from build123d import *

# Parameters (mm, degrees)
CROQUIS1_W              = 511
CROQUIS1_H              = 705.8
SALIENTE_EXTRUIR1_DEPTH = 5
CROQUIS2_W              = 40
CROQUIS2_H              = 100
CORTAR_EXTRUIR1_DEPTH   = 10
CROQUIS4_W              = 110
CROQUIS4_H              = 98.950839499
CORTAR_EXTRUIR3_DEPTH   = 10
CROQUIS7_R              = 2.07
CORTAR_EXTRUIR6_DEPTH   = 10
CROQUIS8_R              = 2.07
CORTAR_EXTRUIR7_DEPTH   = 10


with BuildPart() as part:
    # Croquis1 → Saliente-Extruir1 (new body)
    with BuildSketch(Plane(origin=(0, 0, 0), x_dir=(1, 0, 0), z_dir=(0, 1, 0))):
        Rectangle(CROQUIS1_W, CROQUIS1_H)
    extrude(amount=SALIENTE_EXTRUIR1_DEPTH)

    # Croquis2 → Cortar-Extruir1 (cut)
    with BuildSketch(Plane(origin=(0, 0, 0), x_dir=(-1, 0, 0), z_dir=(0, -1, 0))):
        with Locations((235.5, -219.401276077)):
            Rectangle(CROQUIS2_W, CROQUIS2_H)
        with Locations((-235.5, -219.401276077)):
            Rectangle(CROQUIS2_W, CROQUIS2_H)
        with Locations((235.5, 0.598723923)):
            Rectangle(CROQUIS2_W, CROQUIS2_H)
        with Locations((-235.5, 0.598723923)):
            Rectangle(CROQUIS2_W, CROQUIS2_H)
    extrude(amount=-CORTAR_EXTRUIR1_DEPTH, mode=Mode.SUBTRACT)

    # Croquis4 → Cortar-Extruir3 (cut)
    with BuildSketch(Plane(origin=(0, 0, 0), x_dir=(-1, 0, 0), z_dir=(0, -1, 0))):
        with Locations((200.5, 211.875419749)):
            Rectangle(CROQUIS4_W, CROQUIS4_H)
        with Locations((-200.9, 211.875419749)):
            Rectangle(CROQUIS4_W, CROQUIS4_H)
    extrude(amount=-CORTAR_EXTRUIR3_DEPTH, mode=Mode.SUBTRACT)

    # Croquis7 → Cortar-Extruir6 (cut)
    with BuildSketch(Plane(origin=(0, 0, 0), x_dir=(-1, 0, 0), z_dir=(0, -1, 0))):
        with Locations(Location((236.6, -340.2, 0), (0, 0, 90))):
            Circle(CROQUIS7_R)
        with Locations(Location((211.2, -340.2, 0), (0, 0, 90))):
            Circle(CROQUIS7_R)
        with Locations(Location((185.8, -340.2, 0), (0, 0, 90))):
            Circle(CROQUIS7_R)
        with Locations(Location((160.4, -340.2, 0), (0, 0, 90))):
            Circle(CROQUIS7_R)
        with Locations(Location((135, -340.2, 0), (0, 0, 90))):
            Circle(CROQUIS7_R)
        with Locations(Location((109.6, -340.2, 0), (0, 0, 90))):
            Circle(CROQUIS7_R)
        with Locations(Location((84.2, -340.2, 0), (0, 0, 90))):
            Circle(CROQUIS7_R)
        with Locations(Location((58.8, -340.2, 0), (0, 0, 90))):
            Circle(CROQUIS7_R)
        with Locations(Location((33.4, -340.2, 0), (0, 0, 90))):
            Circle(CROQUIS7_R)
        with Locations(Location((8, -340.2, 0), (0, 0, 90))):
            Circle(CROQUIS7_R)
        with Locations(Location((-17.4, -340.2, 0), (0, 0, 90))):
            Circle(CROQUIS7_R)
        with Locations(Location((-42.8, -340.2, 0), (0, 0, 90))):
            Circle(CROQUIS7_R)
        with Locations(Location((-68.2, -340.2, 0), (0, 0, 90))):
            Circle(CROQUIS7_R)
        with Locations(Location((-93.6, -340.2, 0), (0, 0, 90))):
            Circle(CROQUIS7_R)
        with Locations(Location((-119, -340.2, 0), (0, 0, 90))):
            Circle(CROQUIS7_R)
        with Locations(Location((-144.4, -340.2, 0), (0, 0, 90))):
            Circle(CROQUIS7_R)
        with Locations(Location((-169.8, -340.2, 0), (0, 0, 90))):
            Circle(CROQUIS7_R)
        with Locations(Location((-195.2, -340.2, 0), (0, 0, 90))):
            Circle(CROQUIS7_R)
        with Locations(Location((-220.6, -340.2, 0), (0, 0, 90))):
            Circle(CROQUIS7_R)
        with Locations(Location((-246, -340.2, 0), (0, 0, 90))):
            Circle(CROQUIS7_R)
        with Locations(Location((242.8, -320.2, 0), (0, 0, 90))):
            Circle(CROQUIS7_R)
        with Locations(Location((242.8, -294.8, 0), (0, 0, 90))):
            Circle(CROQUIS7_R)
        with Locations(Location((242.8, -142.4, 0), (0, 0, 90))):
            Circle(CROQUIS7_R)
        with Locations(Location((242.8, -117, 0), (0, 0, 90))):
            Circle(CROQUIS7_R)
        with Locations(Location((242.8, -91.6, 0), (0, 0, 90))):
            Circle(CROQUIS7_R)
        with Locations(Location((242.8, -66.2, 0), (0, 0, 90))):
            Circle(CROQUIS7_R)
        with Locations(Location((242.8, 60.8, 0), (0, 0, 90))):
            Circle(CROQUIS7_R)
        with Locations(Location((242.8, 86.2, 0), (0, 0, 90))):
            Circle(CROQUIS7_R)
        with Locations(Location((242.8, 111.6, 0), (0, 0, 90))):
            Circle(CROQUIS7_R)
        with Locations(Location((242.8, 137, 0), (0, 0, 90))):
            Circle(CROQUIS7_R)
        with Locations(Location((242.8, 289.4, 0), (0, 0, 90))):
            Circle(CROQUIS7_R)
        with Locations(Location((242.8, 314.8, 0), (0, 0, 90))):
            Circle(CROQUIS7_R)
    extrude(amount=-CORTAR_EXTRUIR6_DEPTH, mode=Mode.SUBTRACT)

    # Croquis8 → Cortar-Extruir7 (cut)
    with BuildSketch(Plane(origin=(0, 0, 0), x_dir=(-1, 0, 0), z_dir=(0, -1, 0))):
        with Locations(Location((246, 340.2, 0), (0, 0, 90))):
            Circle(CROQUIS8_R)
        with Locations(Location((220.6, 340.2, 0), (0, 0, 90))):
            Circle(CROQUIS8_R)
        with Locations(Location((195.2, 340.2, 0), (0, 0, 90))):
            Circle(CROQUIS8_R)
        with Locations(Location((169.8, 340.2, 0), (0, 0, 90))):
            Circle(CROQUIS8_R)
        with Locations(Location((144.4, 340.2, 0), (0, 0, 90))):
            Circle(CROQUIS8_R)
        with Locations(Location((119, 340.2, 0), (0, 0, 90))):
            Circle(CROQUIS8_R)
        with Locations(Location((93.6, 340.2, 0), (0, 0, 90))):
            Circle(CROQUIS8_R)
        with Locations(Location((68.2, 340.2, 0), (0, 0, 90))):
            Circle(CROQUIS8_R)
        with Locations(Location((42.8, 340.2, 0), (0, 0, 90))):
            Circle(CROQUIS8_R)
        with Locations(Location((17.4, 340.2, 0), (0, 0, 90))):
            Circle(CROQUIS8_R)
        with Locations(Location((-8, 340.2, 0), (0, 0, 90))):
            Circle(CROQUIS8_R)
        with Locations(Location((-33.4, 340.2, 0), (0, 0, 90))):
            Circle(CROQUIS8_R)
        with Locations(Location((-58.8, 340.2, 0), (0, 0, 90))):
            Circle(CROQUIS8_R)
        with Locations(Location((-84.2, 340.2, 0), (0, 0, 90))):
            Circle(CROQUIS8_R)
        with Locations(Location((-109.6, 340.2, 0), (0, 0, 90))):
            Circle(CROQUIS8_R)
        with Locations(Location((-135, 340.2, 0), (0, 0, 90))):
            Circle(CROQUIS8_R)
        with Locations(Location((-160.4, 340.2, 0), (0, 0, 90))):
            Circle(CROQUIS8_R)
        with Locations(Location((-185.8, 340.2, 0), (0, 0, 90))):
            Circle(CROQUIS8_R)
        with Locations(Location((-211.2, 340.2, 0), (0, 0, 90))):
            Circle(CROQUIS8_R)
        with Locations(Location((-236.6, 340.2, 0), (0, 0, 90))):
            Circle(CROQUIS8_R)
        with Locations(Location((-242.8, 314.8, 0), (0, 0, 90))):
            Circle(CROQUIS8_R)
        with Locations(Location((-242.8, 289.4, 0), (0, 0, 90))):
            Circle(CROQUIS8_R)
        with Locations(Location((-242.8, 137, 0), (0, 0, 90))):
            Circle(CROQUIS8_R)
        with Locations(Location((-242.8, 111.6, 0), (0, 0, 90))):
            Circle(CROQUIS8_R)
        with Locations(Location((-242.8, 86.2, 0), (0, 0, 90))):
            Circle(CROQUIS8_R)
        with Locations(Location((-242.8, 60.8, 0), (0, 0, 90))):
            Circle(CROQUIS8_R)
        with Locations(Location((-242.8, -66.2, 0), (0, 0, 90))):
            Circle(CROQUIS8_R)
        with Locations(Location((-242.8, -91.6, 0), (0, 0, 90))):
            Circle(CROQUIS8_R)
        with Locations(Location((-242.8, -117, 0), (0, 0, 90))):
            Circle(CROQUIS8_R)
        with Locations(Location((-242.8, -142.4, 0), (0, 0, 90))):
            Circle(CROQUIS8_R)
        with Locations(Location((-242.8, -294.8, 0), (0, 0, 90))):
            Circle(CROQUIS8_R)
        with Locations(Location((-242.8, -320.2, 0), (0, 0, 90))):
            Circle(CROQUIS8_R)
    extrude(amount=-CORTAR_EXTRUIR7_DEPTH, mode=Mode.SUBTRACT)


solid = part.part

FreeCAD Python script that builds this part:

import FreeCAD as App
import Part
import Sketcher
from FreeCAD import Vector
Q = App.Units.Quantity

doc = App.newDocument("Part")
body = doc.addObject("PartDesign::Body", "Body")

# Sketch on XZ plane
sketch1 = doc.addObject("Sketcher::SketchObject", "Sketch")
body.addObject(sketch1)
sketch1.AttachmentSupport = (doc.XZ_Plane, [""])
sketch1.MapMode = "FlatFace"
sketch1.addGeometry([
    Part.LineSegment(Vector(-256, -353, 0), Vector(-256, 353, 0)),
    Part.LineSegment(Vector(-256, 353, 0), Vector(256, 353, 0)),
    Part.LineSegment(Vector(256, 353, 0), Vector(256, -353, 0)),
    Part.LineSegment(Vector(256, -353, 0), Vector(-256, -353, 0)),
], False)
sketch1.addConstraint([
    Sketcher.Constraint("Coincident", 0, 2, 1, 1),
    Sketcher.Constraint("Coincident", 1, 2, 2, 1),
    Sketcher.Constraint("Coincident", 2, 2, 3, 1),
    Sketcher.Constraint("Coincident", 3, 2, 0, 1),
    Sketcher.Constraint("Vertical", 0),
    Sketcher.Constraint("Horizontal", 1),
    Sketcher.Constraint("Vertical", 2),
    Sketcher.Constraint("Horizontal", 3),
    Sketcher.Constraint("Symmetric", 0, 2, 2, 2, -1, 1),
    Sketcher.Constraint("DistanceX", 1, 1, 1, 2, Q("511 mm")),
    Sketcher.Constraint("DistanceY", 0, 1, 0, 2, Q("705.8 mm")),
])
pad1 = doc.addObject("PartDesign::Pad", "Pad")
body.addObject(pad1)
pad1.Profile = sketch1
pad1.Length = 5
pad1.Reversed = True

# Sketch on XZ plane
sketch2 = doc.addObject("Sketcher::SketchObject", "Sketch001")
body.addObject(sketch2)
sketch2.AttachmentSupport = (doc.XZ_Plane, [""])
sketch2.MapMode = "FlatFace"
sketch2.addGeometry([
    Part.LineSegment(Vector(-216, 169, 0), Vector(-216, 269, 0)),  # 0
    Part.LineSegment(Vector(-216, 269, 0), Vector(-256, 269, 0)),  # 1
    Part.LineSegment(Vector(-256, 269, 0), Vector(-256, 169, 0)),  # 2
    Part.LineSegment(Vector(-256, 169, 0), Vector(-216, 169, 0)),  # 3
    Part.LineSegment(Vector(256, 169, 0), Vector(256, 269, 0)),  # 4
    Part.LineSegment(Vector(256, 269, 0), Vector(216, 269, 0)),  # 5
    Part.LineSegment(Vector(216, 269, 0), Vector(216, 169, 0)),  # 6
    Part.LineSegment(Vector(216, 169, 0), Vector(256, 169, 0)),  # 7
    Part.LineSegment(Vector(-216, -51, 0), Vector(-216, 49, 0)),  # 8
    Part.LineSegment(Vector(-216, 49, 0), Vector(-256, 49, 0)),  # 9
    Part.LineSegment(Vector(-256, 49, 0), Vector(-256, -51, 0)),  # 10
    Part.LineSegment(Vector(-256, -51, 0), Vector(-216, -51, 0)),  # 11
    Part.LineSegment(Vector(256, -51, 0), Vector(256, 49, 0)),  # 12
    Part.LineSegment(Vector(256, 49, 0), Vector(216, 49, 0)),  # 13
    Part.LineSegment(Vector(216, 49, 0), Vector(216, -51, 0)),  # 14
    Part.LineSegment(Vector(216, -51, 0), Vector(256, -51, 0)),  # 15
], False)
sketch2.addConstraint([
    Sketcher.Constraint("Coincident", 0, 2, 1, 1),
    Sketcher.Constraint("Coincident", 1, 2, 2, 1),
    Sketcher.Constraint("Coincident", 2, 2, 3, 1),
    Sketcher.Constraint("Coincident", 3, 2, 0, 1),
    Sketcher.Constraint("Coincident", 4, 2, 5, 1),
    Sketcher.Constraint("Coincident", 5, 2, 6, 1),
    Sketcher.Constraint("Coincident", 6, 2, 7, 1),
    Sketcher.Constraint("Coincident", 7, 2, 4, 1),
    Sketcher.Constraint("Coincident", 8, 2, 9, 1),
    Sketcher.Constraint("Coincident", 9, 2, 10, 1),
    Sketcher.Constraint("Coincident", 10, 2, 11, 1),
    Sketcher.Constraint("Coincident", 11, 2, 8, 1),
    Sketcher.Constraint("Coincident", 12, 2, 13, 1),
    Sketcher.Constraint("Coincident", 13, 2, 14, 1),
    Sketcher.Constraint("Coincident", 14, 2, 15, 1),
    Sketcher.Constraint("Coincident", 15, 2, 12, 1),
    Sketcher.Constraint("Vertical", 0),
    Sketcher.Constraint("Horizontal", 1),
    Sketcher.Constraint("Vertical", 2),
    Sketcher.Constraint("Horizontal", 3),
    Sketcher.Constraint("Vertical", 4),
    Sketcher.Constraint("Horizontal", 5),
    Sketcher.Constraint("Vertical", 6),
    Sketcher.Constraint("Horizontal", 7),
    Sketcher.Constraint("Vertical", 8),
    Sketcher.Constraint("Horizontal", 9),
    Sketcher.Constraint("Vertical", 10),
    Sketcher.Constraint("Horizontal", 11),
    Sketcher.Constraint("Vertical", 12),
    Sketcher.Constraint("Horizontal", 13),
    Sketcher.Constraint("Vertical", 14),
    Sketcher.Constraint("Horizontal", 15),
    Sketcher.Constraint("Symmetric", 1, 2, 4, 2, -2),
    Sketcher.Constraint("Symmetric", 3, 2, 6, 2, -2),
    Sketcher.Constraint("Symmetric", 9, 2, 12, 2, -2),
    Sketcher.Constraint("Symmetric", 11, 2, 14, 2, -2),
    Sketcher.Constraint("Vertical", 3, 2, 8, 2),
    Sketcher.Constraint("Vertical", 2, 2, 9, 2),
    Sketcher.Constraint("Equal", 6, 8),
    Sketcher.Constraint("DistanceX", 1, 2, 1, 1, Q("40 mm")),
    Sketcher.Constraint("DistanceY", 0, 1, 0, 2, Q("100 mm")),
    Sketcher.Constraint("DistanceX", 0, 2, 4, 2, Q("471 mm")),
    Sketcher.Constraint("DistanceY", 8, 2, 3, 2, Q("120 mm")),
    Sketcher.Constraint("DistanceY", -1, 1, 0, 2, Q("269.401276 mm")),
])
pocket1 = doc.addObject("PartDesign::Pocket", "Pocket")
body.addObject(pocket1)
pocket1.Profile = sketch2
pocket1.Length = 10

# Sketch on XZ plane
sketch3 = doc.addObject("Sketcher::SketchObject", "Sketch002")
body.addObject(sketch3)
sketch3.AttachmentSupport = (doc.XZ_Plane, [""])
sketch3.MapMode = "FlatFace"
sketch3.addGeometry([
    Part.LineSegment(Vector(-146, -261, 0), Vector(-146, -162, 0)),  # 0
    Part.LineSegment(Vector(-146, -162, 0), Vector(-256, -162, 0)),  # 1
    Part.LineSegment(Vector(-256, -162, 0), Vector(-256, -261, 0)),  # 2
    Part.LineSegment(Vector(-256, -261, 0), Vector(-146, -261, 0)),  # 3
    Part.LineSegment(Vector(256, -261, 0), Vector(256, -162, 0)),  # 4
    Part.LineSegment(Vector(256, -162, 0), Vector(146, -162, 0)),  # 5
    Part.LineSegment(Vector(146, -162, 0), Vector(146, -261, 0)),  # 6
    Part.LineSegment(Vector(146, -261, 0), Vector(256, -261, 0)),  # 7
], False)
sketch3.addConstraint([
    Sketcher.Constraint("Coincident", 0, 2, 1, 1),
    Sketcher.Constraint("Coincident", 1, 2, 2, 1),
    Sketcher.Constraint("Coincident", 2, 2, 3, 1),
    Sketcher.Constraint("Coincident", 3, 2, 0, 1),
    Sketcher.Constraint("Coincident", 4, 2, 5, 1),
    Sketcher.Constraint("Coincident", 5, 2, 6, 1),
    Sketcher.Constraint("Coincident", 6, 2, 7, 1),
    Sketcher.Constraint("Coincident", 7, 2, 4, 1),
    Sketcher.Constraint("Vertical", 0),
    Sketcher.Constraint("Horizontal", 1),
    Sketcher.Constraint("Vertical", 2),
    Sketcher.Constraint("Horizontal", 3),
    Sketcher.Constraint("Vertical", 4),
    Sketcher.Constraint("Horizontal", 5),
    Sketcher.Constraint("Vertical", 6),
    Sketcher.Constraint("Horizontal", 7),
    Sketcher.Constraint("Horizontal", 1, 2, 4, 2),
    Sketcher.Constraint("Horizontal", 3, 2, 6, 2),
    Sketcher.Constraint("Equal", 3, 5),
    Sketcher.Constraint("DistanceX", 1, 2, 1, 1, Q("110 mm")),
    Sketcher.Constraint("DistanceX", 0, 2, -1, 1, Q("145.5 mm")),
    Sketcher.Constraint("DistanceY", 0, 2, -1, 1, Q("162.4 mm")),
    Sketcher.Constraint("DistanceX", -1, 1, 4, 2, Q("255.9 mm")),
    Sketcher.Constraint("DistanceY", 0, 1, 0, 2, Q("98.950839 mm")),
])
pocket2 = doc.addObject("PartDesign::Pocket", "Pocket001")
body.addObject(pocket2)
pocket2.Profile = sketch3
pocket2.Length = 10

# Sketch on XZ plane
sketch4 = doc.addObject("Sketcher::SketchObject", "Sketch003")
body.addObject(sketch4)
sketch4.AttachmentSupport = (doc.XZ_Plane, [""])
sketch4.MapMode = "FlatFace"
sketch4.addGeometry([
    Part.Circle(Vector(-236.6, 340.2, 0), Vector(0, 0, 1), 2.1),  # 0
    Part.Circle(Vector(-211.2, 340.2, 0), Vector(0, 0, 1), 2.1),  # 1
    Part.Circle(Vector(-185.8, 340.2, 0), Vector(0, 0, 1), 2.1),  # 2
    Part.Circle(Vector(-160.4, 340.2, 0), Vector(0, 0, 1), 2.1),  # 3
    Part.Circle(Vector(-135, 340.2, 0), Vector(0, 0, 1), 2.1),  # 4
    Part.Circle(Vector(-109.6, 340.2, 0), Vector(0, 0, 1), 2.1),  # 5
    Part.Circle(Vector(-84.2, 340.2, 0), Vector(0, 0, 1), 2.1),  # 6
    Part.Circle(Vector(-58.8, 340.2, 0), Vector(0, 0, 1), 2.1),  # 7
    Part.Circle(Vector(-33.4, 340.2, 0), Vector(0, 0, 1), 2.1),  # 8
    Part.Circle(Vector(-8, 340.2, 0), Vector(0, 0, 1), 2.1),  # 9
    Part.Circle(Vector(17.4, 340.2, 0), Vector(0, 0, 1), 2.1),  # 10
    Part.Circle(Vector(42.8, 340.2, 0), Vector(0, 0, 1), 2.1),  # 11
    Part.Circle(Vector(68.2, 340.2, 0), Vector(0, 0, 1), 2.1),  # 12
    Part.Circle(Vector(93.6, 340.2, 0), Vector(0, 0, 1), 2.1),  # 13
    Part.Circle(Vector(119, 340.2, 0), Vector(0, 0, 1), 2.1),  # 14
    Part.Circle(Vector(144.4, 340.2, 0), Vector(0, 0, 1), 2.1),  # 15
    Part.Circle(Vector(169.8, 340.2, 0), Vector(0, 0, 1), 2.1),  # 16
    Part.Circle(Vector(195.2, 340.2, 0), Vector(0, 0, 1), 2.1),  # 17
    Part.Circle(Vector(220.6, 340.2, 0), Vector(0, 0, 1), 2.1),  # 18
    Part.Circle(Vector(246, 340.2, 0), Vector(0, 0, 1), 2.1),  # 19
    Part.Circle(Vector(-242.8, 320.2, 0), Vector(0, 0, 1), 2.1),  # 20
    Part.Circle(Vector(-242.8, 294.8, 0), Vector(0, 0, 1), 2.1),  # 21
    Part.Circle(Vector(-242.8, 142.4, 0), Vector(0, 0, 1), 2.1),  # 22
    Part.Circle(Vector(-242.8, 117, 0), Vector(0, 0, 1), 2.1),  # 23
    Part.Circle(Vector(-242.8, 91.6, 0), Vector(0, 0, 1), 2.1),  # 24
    Part.Circle(Vector(-242.8, 66.2, 0), Vector(0, 0, 1), 2.1),  # 25
    Part.Circle(Vector(-242.8, -60.8, 0), Vector(0, 0, 1), 2.1),  # 26
    Part.Circle(Vector(-242.8, -86.2, 0), Vector(0, 0, 1), 2.1),  # 27
    Part.Circle(Vector(-242.8, -111.6, 0), Vector(0, 0, 1), 2.1),  # 28
    Part.Circle(Vector(-242.8, -137, 0), Vector(0, 0, 1), 2.1),  # 29
    Part.Circle(Vector(-242.8, -289.4, 0), Vector(0, 0, 1), 2.1),  # 30
    Part.Circle(Vector(-242.8, -314.8, 0), Vector(0, 0, 1), 2.1),  # 31
], False)
sketch4.addConstraint([
    Sketcher.Constraint("Equal", 0, 1),
    Sketcher.Constraint("Equal", 1, 2),
    Sketcher.Constraint("Equal", 2, 3),
    Sketcher.Constraint("Equal", 3, 4),
    Sketcher.Constraint("Equal", 4, 5),
    Sketcher.Constraint("Equal", 5, 6),
    Sketcher.Constraint("Equal", 6, 7),
    Sketcher.Constraint("Equal", 7, 8),
    Sketcher.Constraint("Equal", 8, 9),
    Sketcher.Constraint("Equal", 9, 10),
    Sketcher.Constraint("Equal", 10, 11),
    Sketcher.Constraint("Equal", 11, 12),
    Sketcher.Constraint("Equal", 12, 13),
    Sketcher.Constraint("Equal", 13, 14),
    Sketcher.Constraint("Equal", 14, 15),
    Sketcher.Constraint("Equal", 15, 16),
    Sketcher.Constraint("Equal", 16, 17),
    Sketcher.Constraint("Equal", 17, 18),
    Sketcher.Constraint("Equal", 18, 19),
    Sketcher.Constraint("Equal", 19, 20),
    Sketcher.Constraint("Equal", 20, 21),
    Sketcher.Constraint("Equal", 21, 22),
    Sketcher.Constraint("Equal", 22, 23),
    Sketcher.Constraint("Equal", 23, 24),
    Sketcher.Constraint("Equal", 24, 25),
    Sketcher.Constraint("Equal", 25, 26),
    Sketcher.Constraint("Equal", 26, 27),
    Sketcher.Constraint("Equal", 27, 28),
    Sketcher.Constraint("Equal", 28, 29),
    Sketcher.Constraint("Equal", 29, 30),
    Sketcher.Constraint("Equal", 30, 31),
    Sketcher.Constraint("Horizontal", 0, 3, 1, 3),
    Sketcher.Constraint("Horizontal", 1, 3, 2, 3),
    Sketcher.Constraint("Horizontal", 2, 3, 3, 3),
    Sketcher.Constraint("Horizontal", 3, 3, 4, 3),
    Sketcher.Constraint("Horizontal", 4, 3, 5, 3),
    Sketcher.Constraint("Horizontal", 5, 3, 6, 3),
    Sketcher.Constraint("Horizontal", 6, 3, 7, 3),
    Sketcher.Constraint("Horizontal", 7, 3, 8, 3),
    Sketcher.Constraint("Horizontal", 8, 3, 9, 3),
    Sketcher.Constraint("Horizontal", 9, 3, 10, 3),
    Sketcher.Constraint("Horizontal", 10, 3, 11, 3),
    Sketcher.Constraint("Horizontal", 11, 3, 12, 3),
    Sketcher.Constraint("Horizontal", 12, 3, 13, 3),
    Sketcher.Constraint("Horizontal", 13, 3, 14, 3),
    Sketcher.Constraint("Horizontal", 14, 3, 15, 3),
    Sketcher.Constraint("Horizontal", 15, 3, 16, 3),
    Sketcher.Constraint("Horizontal", 16, 3, 17, 3),
    Sketcher.Constraint("Horizontal", 17, 3, 18, 3),
    Sketcher.Constraint("Horizontal", 18, 3, 19, 3),
    Sketcher.Constraint("Vertical", 20, 3, 21, 3),
    Sketcher.Constraint("Vertical", 21, 3, 22, 3),
    Sketcher.Constraint("Vertical", 22, 3, 23, 3),
    Sketcher.Constraint("Vertical", 23, 3, 24, 3),
    Sketcher.Constraint("Vertical", 24, 3, 25, 3),
    Sketcher.Constraint("Vertical", 25, 3, 26, 3),
    Sketcher.Constraint("Vertical", 26, 3, 27, 3),
    Sketcher.Constraint("Vertical", 27, 3, 28, 3),
    Sketcher.Constraint("Vertical", 28, 3, 29, 3),
    Sketcher.Constraint("Vertical", 29, 3, 30, 3),
    Sketcher.Constraint("Vertical", 30, 3, 31, 3),
    Sketcher.Constraint("Diameter", 0, Q("4.14 mm")),
    Sketcher.Constraint("DistanceX", 4, 3, -1, 1, Q("135 mm")),
    Sketcher.Constraint("DistanceX", 9, 3, -1, 1, Q("8 mm")),
    Sketcher.Constraint("DistanceX", -1, 1, 14, 3, Q("119 mm")),
    Sketcher.Constraint("DistanceX", -1, 1, 19, 3, Q("246 mm")),
    Sketcher.Constraint("DistanceY", -1, 1, 23, 3, Q("117 mm")),
    Sketcher.Constraint("DistanceY", 29, 3, -1, 1, Q("137 mm")),
    Sketcher.Constraint("DistanceX", 0, 3, 5, 3, Q("127 mm")),
    Sketcher.Constraint("DistanceX", 1, 3, 6, 3, Q("127 mm")),
    Sketcher.Constraint("DistanceX", 2, 3, 7, 3, Q("127 mm")),
    Sketcher.Constraint("DistanceX", 3, 3, 8, 3, Q("127 mm")),
    Sketcher.Constraint("DistanceX", 5, 3, 10, 3, Q("127 mm")),
    Sketcher.Constraint("DistanceX", 6, 3, 11, 3, Q("127 mm")),
    Sketcher.Constraint("DistanceX", 7, 3, 12, 3, Q("127 mm")),
    Sketcher.Constraint("DistanceX", 8, 3, 13, 3, Q("127 mm")),
    Sketcher.Constraint("DistanceX", 10, 3, 15, 3, Q("127 mm")),
    Sketcher.Constraint("DistanceX", 11, 3, 16, 3, Q("127 mm")),
    Sketcher.Constraint("DistanceX", 12, 3, 17, 3, Q("127 mm")),
    Sketcher.Constraint("DistanceX", 13, 3, 18, 3, Q("127 mm")),
    Sketcher.Constraint("DistanceY", 20, 3, 0, 3, Q("20 mm")),
    Sketcher.Constraint("DistanceX", 20, 3, 2, 3, Q("57 mm")),
    Sketcher.Constraint("DistanceY", 25, 3, 20, 3, Q("254 mm")),
    Sketcher.Constraint("DistanceY", 26, 3, 25, 3, Q("127 mm")),
    Sketcher.Constraint("DistanceY", 31, 3, 26, 3, Q("254 mm")),
    Sketcher.Constraint("DistanceX", 0, 3, -1, 1, Q("236.6 mm")),
    Sketcher.Constraint("DistanceY", -1, 1, 0, 3, Q("340.2 mm")),
    Sketcher.Constraint("DistanceX", 1, 3, -1, 1, Q("211.2 mm")),
    Sketcher.Constraint("DistanceX", 2, 3, -1, 1, Q("185.8 mm")),
    Sketcher.Constraint("DistanceX", 3, 3, -1, 1, Q("160.4 mm")),
    Sketcher.Constraint("DistanceY", -1, 1, 21, 3, Q("294.8 mm")),
    Sketcher.Constraint("DistanceY", -1, 1, 22, 3, Q("142.4 mm")),
    Sketcher.Constraint("DistanceY", -1, 1, 24, 3, Q("91.6 mm")),
    Sketcher.Constraint("DistanceY", 27, 3, -1, 1, Q("86.2 mm")),
    Sketcher.Constraint("DistanceY", 28, 3, -1, 1, Q("111.6 mm")),
    Sketcher.Constraint("DistanceY", 30, 3, -1, 1, Q("289.4 mm")),
])
pocket3 = doc.addObject("PartDesign::Pocket", "Pocket002")
body.addObject(pocket3)
pocket3.Profile = sketch4
pocket3.Length = 10

# Sketch on XZ plane
sketch5 = doc.addObject("Sketcher::SketchObject", "Sketch004")
body.addObject(sketch5)
sketch5.AttachmentSupport = (doc.XZ_Plane, [""])
sketch5.MapMode = "FlatFace"
sketch5.addGeometry([
    Part.Circle(Vector(-246, -340.2, 0), Vector(0, 0, 1), 2.1),  # 0
    Part.Circle(Vector(-220.6, -340.2, 0), Vector(0, 0, 1), 2.1),  # 1
    Part.Circle(Vector(-195.2, -340.2, 0), Vector(0, 0, 1), 2.1),  # 2
    Part.Circle(Vector(-169.8, -340.2, 0), Vector(0, 0, 1), 2.1),  # 3
    Part.Circle(Vector(-144.4, -340.2, 0), Vector(0, 0, 1), 2.1),  # 4
    Part.Circle(Vector(-119, -340.2, 0), Vector(0, 0, 1), 2.1),  # 5
    Part.Circle(Vector(-93.6, -340.2, 0), Vector(0, 0, 1), 2.1),  # 6
    Part.Circle(Vector(-68.2, -340.2, 0), Vector(0, 0, 1), 2.1),  # 7
    Part.Circle(Vector(-42.8, -340.2, 0), Vector(0, 0, 1), 2.1),  # 8
    Part.Circle(Vector(-17.4, -340.2, 0), Vector(0, 0, 1), 2.1),  # 9
    Part.Circle(Vector(8, -340.2, 0), Vector(0, 0, 1), 2.1),  # 10
    Part.Circle(Vector(33.4, -340.2, 0), Vector(0, 0, 1), 2.1),  # 11
    Part.Circle(Vector(58.8, -340.2, 0), Vector(0, 0, 1), 2.1),  # 12
    Part.Circle(Vector(84.2, -340.2, 0), Vector(0, 0, 1), 2.1),  # 13
    Part.Circle(Vector(109.6, -340.2, 0), Vector(0, 0, 1), 2.1),  # 14
    Part.Circle(Vector(135, -340.2, 0), Vector(0, 0, 1), 2.1),  # 15
    Part.Circle(Vector(160.4, -340.2, 0), Vector(0, 0, 1), 2.1),  # 16
    Part.Circle(Vector(185.8, -340.2, 0), Vector(0, 0, 1), 2.1),  # 17
    Part.Circle(Vector(211.2, -340.2, 0), Vector(0, 0, 1), 2.1),  # 18
    Part.Circle(Vector(236.6, -340.2, 0), Vector(0, 0, 1), 2.1),  # 19
    Part.Circle(Vector(242.8, -314.8, 0), Vector(0, 0, 1), 2.1),  # 20
    Part.Circle(Vector(242.8, -289.4, 0), Vector(0, 0, 1), 2.1),  # 21
    Part.Circle(Vector(242.8, -137, 0), Vector(0, 0, 1), 2.1),  # 22
    Part.Circle(Vector(242.8, -111.6, 0), Vector(0, 0, 1), 2.1),  # 23
    Part.Circle(Vector(242.8, -86.2, 0), Vector(0, 0, 1), 2.1),  # 24
    Part.Circle(Vector(242.8, -60.8, 0), Vector(0, 0, 1), 2.1),  # 25
    Part.Circle(Vector(242.8, 66.2, 0), Vector(0, 0, 1), 2.1),  # 26
    Part.Circle(Vector(242.8, 91.6, 0), Vector(0, 0, 1), 2.1),  # 27
    Part.Circle(Vector(242.8, 117, 0), Vector(0, 0, 1), 2.1),  # 28
    Part.Circle(Vector(242.8, 142.4, 0), Vector(0, 0, 1), 2.1),  # 29
    Part.Circle(Vector(242.8, 294.8, 0), Vector(0, 0, 1), 2.1),  # 30
    Part.Circle(Vector(242.8, 320.2, 0), Vector(0, 0, 1), 2.1),  # 31
], False)
sketch5.addConstraint([
    Sketcher.Constraint("Equal", 0, 1),
    Sketcher.Constraint("Equal", 1, 2),
    Sketcher.Constraint("Equal", 2, 3),
    Sketcher.Constraint("Equal", 3, 4),
    Sketcher.Constraint("Equal", 4, 5),
    Sketcher.Constraint("Equal", 5, 6),
    Sketcher.Constraint("Equal", 6, 7),
    Sketcher.Constraint("Equal", 7, 8),
    Sketcher.Constraint("Equal", 8, 9),
    Sketcher.Constraint("Equal", 9, 10),
    Sketcher.Constraint("Equal", 10, 11),
    Sketcher.Constraint("Equal", 11, 12),
    Sketcher.Constraint("Equal", 12, 13),
    Sketcher.Constraint("Equal", 13, 14),
    Sketcher.Constraint("Equal", 14, 15),
    Sketcher.Constraint("Equal", 15, 16),
    Sketcher.Constraint("Equal", 16, 17),
    Sketcher.Constraint("Equal", 17, 18),
    Sketcher.Constraint("Equal", 18, 19),
    Sketcher.Constraint("Equal", 19, 20),
    Sketcher.Constraint("Equal", 20, 21),
    Sketcher.Constraint("Equal", 21, 22),
    Sketcher.Constraint("Equal", 22, 23),
    Sketcher.Constraint("Equal", 23, 24),
    Sketcher.Constraint("Equal", 24, 25),
    Sketcher.Constraint("Equal", 25, 26),
    Sketcher.Constraint("Equal", 26, 27),
    Sketcher.Constraint("Equal", 27, 28),
    Sketcher.Constraint("Equal", 28, 29),
    Sketcher.Constraint("Equal", 29, 30),
    Sketcher.Constraint("Equal", 30, 31),
    Sketcher.Constraint("Horizontal", 0, 3, 1, 3),
    Sketcher.Constraint("Horizontal", 1, 3, 2, 3),
    Sketcher.Constraint("Horizontal", 2, 3, 3, 3),
    Sketcher.Constraint("Horizontal", 3, 3, 4, 3),
    Sketcher.Constraint("Horizontal", 4, 3, 5, 3),
    Sketcher.Constraint("Horizontal", 5, 3, 6, 3),
    Sketcher.Constraint("Horizontal", 6, 3, 7, 3),
    Sketcher.Constraint("Horizontal", 7, 3, 8, 3),
    Sketcher.Constraint("Horizontal", 8, 3, 9, 3),
    Sketcher.Constraint("Horizontal", 9, 3, 10, 3),
    Sketcher.Constraint("Horizontal", 10, 3, 11, 3),
    Sketcher.Constraint("Horizontal", 11, 3, 12, 3),
    Sketcher.Constraint("Horizontal", 12, 3, 13, 3),
    Sketcher.Constraint("Horizontal", 13, 3, 14, 3),
    Sketcher.Constraint("Horizontal", 14, 3, 15, 3),
    Sketcher.Constraint("Horizontal", 15, 3, 16, 3),
    Sketcher.Constraint("Horizontal", 16, 3, 17, 3),
    Sketcher.Constraint("Horizontal", 17, 3, 18, 3),
    Sketcher.Constraint("Horizontal", 18, 3, 19, 3),
    Sketcher.Constraint("Vertical", 20, 3, 21, 3),
    Sketcher.Constraint("Vertical", 21, 3, 22, 3),
    Sketcher.Constraint("Vertical", 22, 3, 23, 3),
    Sketcher.Constraint("Vertical", 23, 3, 24, 3),
    Sketcher.Constraint("Vertical", 24, 3, 25, 3),
    Sketcher.Constraint("Vertical", 25, 3, 26, 3),
    Sketcher.Constraint("Vertical", 26, 3, 27, 3),
    Sketcher.Constraint("Vertical", 27, 3, 28, 3),
    Sketcher.Constraint("Vertical", 28, 3, 29, 3),
    Sketcher.Constraint("Vertical", 29, 3, 30, 3),
    Sketcher.Constraint("Vertical", 30, 3, 31, 3),
    Sketcher.Constraint("Diameter", 0, Q("4.14 mm")),
    Sketcher.Constraint("DistanceX", 0, 3, -1, 1, Q("246 mm")),
    Sketcher.Constraint("DistanceX", 5, 3, -1, 1, Q("119 mm")),
    Sketcher.Constraint("DistanceX", -1, 1, 10, 3, Q("8 mm")),
    Sketcher.Constraint("DistanceX", -1, 1, 15, 3, Q("135 mm")),
    Sketcher.Constraint("DistanceY", 22, 3, -1, 1, Q("137 mm")),
    Sketcher.Constraint("DistanceY", -1, 1, 28, 3, Q("117 mm")),
    Sketcher.Constraint("DistanceX", 1, 3, 6, 3, Q("127 mm")),
    Sketcher.Constraint("DistanceX", 2, 3, 7, 3, Q("127 mm")),
    Sketcher.Constraint("DistanceX", 3, 3, 8, 3, Q("127 mm")),
    Sketcher.Constraint("DistanceX", 4, 3, 9, 3, Q("127 mm")),
    Sketcher.Constraint("DistanceX", 6, 3, 11, 3, Q("127 mm")),
    Sketcher.Constraint("DistanceX", 7, 3, 12, 3, Q("127 mm")),
    Sketcher.Constraint("DistanceX", 8, 3, 13, 3, Q("127 mm")),
    Sketcher.Constraint("DistanceX", 9, 3, 14, 3, Q("127 mm")),
    Sketcher.Constraint("DistanceX", 11, 3, 16, 3, Q("127 mm")),
    Sketcher.Constraint("DistanceX", 12, 3, 17, 3, Q("127 mm")),
    Sketcher.Constraint("DistanceX", 13, 3, 18, 3, Q("127 mm")),
    Sketcher.Constraint("DistanceX", 14, 3, 19, 3, Q("127 mm")),
    Sketcher.Constraint("DistanceX", 17, 3, 20, 3, Q("57 mm")),
    Sketcher.Constraint("DistanceY", 19, 3, 24, 3, Q("254 mm")),
    Sketcher.Constraint("DistanceY", 20, 3, 25, 3, Q("254 mm")),
    Sketcher.Constraint("DistanceY", 25, 3, 26, 3, Q("127 mm")),
    Sketcher.Constraint("DistanceY", 26, 3, 31, 3, Q("254 mm")),
    Sketcher.Constraint("DistanceY", 0, 3, -1, 1, Q("340.2 mm")),
    Sketcher.Constraint("DistanceX", 1, 3, -1, 1, Q("220.6 mm")),
    Sketcher.Constraint("DistanceX", 2, 3, -1, 1, Q("195.2 mm")),
    Sketcher.Constraint("DistanceX", 3, 3, -1, 1, Q("169.8 mm")),
    Sketcher.Constraint("DistanceX", 4, 3, -1, 1, Q("144.4 mm")),
    Sketcher.Constraint("DistanceY", 20, 3, -1, 1, Q("314.8 mm")),
    Sketcher.Constraint("DistanceY", 21, 3, -1, 1, Q("289.4 mm")),
    Sketcher.Constraint("DistanceY", 23, 3, -1, 1, Q("111.6 mm")),
    Sketcher.Constraint("DistanceY", -1, 1, 27, 3, Q("91.6 mm")),
    Sketcher.Constraint("DistanceY", -1, 1, 29, 3, Q("142.4 mm")),
    Sketcher.Constraint("DistanceY", -1, 1, 30, 3, Q("294.8 mm")),
])
pocket4 = doc.addObject("PartDesign::Pocket", "Pocket003")
body.addObject(pocket4)
pocket4.Profile = sketch5
pocket4.Length = 10

doc.recompute()
